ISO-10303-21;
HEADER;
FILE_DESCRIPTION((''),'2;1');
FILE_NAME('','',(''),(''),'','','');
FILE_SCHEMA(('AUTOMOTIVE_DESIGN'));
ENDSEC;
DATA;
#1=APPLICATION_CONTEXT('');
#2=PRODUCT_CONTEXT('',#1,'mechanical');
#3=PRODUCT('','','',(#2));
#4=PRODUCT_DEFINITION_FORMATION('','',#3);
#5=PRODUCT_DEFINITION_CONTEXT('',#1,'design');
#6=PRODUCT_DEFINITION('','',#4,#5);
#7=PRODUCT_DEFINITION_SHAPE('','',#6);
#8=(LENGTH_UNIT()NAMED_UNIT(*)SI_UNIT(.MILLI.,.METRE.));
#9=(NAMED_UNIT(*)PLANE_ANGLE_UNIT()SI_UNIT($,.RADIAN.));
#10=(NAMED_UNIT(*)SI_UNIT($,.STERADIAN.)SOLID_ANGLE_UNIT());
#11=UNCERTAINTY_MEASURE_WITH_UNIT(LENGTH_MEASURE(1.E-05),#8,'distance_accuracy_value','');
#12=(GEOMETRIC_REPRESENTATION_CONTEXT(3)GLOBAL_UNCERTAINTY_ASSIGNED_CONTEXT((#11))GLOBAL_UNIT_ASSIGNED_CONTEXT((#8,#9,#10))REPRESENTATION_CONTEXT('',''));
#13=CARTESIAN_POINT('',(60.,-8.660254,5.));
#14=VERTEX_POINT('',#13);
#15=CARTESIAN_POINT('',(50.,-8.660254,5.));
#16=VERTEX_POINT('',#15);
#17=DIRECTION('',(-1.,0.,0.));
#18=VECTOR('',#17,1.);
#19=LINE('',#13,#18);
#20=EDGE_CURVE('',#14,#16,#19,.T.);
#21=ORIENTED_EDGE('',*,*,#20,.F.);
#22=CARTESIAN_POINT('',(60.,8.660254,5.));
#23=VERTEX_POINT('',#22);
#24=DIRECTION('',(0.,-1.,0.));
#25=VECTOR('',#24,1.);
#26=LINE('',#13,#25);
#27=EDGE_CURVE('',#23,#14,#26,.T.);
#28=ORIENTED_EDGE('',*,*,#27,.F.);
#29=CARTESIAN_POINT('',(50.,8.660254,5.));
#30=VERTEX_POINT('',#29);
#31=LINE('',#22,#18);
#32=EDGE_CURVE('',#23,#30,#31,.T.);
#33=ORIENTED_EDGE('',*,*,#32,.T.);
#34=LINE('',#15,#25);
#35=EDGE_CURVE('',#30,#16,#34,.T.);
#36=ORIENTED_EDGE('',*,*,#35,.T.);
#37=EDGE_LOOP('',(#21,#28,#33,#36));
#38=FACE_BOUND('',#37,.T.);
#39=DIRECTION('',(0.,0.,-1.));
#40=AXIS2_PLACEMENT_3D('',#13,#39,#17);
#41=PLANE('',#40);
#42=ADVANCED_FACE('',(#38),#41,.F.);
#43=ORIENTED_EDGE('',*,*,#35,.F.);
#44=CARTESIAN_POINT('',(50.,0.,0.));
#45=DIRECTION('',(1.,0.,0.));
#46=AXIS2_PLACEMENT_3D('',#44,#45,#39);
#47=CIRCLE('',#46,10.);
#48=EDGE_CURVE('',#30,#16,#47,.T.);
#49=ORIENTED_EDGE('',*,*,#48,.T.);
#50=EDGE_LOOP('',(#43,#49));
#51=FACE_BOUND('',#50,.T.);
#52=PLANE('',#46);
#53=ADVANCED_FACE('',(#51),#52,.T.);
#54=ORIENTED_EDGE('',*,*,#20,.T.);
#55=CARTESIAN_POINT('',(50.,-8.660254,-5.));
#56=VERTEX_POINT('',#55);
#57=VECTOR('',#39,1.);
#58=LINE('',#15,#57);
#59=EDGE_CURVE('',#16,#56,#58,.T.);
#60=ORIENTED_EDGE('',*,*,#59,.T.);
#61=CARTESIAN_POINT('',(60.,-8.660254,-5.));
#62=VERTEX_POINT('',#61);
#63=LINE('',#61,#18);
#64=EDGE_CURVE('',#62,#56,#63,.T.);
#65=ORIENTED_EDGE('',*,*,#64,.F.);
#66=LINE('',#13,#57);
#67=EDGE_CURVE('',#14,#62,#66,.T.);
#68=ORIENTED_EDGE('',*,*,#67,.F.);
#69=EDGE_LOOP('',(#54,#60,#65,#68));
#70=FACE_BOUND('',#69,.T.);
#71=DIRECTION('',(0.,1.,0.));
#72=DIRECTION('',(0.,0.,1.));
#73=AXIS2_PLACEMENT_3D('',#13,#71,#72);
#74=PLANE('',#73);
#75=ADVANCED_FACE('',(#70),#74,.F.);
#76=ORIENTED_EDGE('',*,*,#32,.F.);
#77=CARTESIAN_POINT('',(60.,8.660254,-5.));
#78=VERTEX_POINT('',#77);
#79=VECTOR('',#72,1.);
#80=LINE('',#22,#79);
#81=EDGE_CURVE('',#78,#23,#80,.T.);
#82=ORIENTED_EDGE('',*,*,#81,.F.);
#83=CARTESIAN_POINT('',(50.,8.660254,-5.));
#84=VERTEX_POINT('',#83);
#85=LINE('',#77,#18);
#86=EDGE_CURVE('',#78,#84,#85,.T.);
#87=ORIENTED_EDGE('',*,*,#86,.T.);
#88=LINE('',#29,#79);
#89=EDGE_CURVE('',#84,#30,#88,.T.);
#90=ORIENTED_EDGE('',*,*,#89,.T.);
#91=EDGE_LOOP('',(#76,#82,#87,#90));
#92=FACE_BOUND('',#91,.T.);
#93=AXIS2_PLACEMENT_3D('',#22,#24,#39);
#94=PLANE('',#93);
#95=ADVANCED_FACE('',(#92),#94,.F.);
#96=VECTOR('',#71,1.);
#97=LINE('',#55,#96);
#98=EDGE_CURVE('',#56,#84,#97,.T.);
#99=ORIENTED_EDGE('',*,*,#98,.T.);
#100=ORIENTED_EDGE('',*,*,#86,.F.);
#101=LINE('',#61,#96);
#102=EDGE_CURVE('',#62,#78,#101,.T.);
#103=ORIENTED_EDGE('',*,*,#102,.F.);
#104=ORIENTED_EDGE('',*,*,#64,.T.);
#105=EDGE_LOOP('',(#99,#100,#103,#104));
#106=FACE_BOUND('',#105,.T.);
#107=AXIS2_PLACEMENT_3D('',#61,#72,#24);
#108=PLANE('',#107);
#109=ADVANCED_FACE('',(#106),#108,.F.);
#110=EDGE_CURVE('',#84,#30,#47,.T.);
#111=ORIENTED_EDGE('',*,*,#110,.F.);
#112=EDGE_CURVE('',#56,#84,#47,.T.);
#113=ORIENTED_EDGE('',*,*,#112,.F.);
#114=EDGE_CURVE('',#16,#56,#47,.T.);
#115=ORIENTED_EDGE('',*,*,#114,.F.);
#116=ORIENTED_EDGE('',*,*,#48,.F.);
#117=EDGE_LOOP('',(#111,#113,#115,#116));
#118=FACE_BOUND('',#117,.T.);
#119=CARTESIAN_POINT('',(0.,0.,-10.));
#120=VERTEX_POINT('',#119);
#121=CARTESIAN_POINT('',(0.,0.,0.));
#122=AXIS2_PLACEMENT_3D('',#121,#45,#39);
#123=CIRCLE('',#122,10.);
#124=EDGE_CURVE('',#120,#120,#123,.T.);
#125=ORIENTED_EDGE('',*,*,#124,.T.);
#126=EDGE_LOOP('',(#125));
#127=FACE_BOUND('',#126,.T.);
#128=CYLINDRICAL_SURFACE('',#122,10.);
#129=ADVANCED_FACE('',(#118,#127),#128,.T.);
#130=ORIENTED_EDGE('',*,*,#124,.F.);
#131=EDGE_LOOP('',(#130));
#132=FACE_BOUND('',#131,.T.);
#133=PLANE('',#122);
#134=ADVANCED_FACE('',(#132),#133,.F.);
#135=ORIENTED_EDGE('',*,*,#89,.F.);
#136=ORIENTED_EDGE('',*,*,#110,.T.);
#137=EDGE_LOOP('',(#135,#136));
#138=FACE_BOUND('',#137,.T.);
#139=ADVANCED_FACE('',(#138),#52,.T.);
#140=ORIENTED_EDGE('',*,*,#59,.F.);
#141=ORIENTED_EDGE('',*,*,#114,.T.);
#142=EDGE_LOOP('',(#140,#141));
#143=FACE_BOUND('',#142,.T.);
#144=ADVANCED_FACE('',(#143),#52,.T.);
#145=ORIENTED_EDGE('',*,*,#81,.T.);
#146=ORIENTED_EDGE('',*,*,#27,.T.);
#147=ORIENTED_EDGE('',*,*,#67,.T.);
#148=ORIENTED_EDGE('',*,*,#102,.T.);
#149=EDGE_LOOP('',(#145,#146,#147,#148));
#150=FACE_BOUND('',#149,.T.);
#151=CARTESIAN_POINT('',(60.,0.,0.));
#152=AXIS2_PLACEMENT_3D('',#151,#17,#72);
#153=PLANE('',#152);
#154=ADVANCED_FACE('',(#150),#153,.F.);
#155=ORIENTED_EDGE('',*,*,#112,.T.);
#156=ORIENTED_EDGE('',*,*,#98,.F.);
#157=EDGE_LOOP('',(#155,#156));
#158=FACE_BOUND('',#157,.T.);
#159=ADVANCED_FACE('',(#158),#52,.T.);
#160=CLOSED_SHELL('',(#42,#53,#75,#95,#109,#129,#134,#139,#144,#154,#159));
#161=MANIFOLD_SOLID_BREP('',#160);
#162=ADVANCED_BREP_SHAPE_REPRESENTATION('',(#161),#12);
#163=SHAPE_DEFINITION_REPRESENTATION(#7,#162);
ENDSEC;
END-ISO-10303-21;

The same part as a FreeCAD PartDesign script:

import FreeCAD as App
import Part
import Sketcher

V = App.Vector


def add_polygon(sketch, points):
    """Adds a closed chain of lines whose ends are joined by coincident constraints."""
    first, n = sketch.GeometryCount, len(points)
    for a, b in zip(points, points[1:] + points[:1]):
        sketch.addGeometry(Part.LineSegment(App.Vector(*a, 0), App.Vector(*b, 0)), False)
    for i in range(n):
        sketch.addConstraint(Sketcher.Constraint("Coincident", first + i, 2, first + (i + 1) % n, 1))

doc = App.newDocument("Part")
body = doc.addObject("PartDesign::Body", "Body")

sketch1 = doc.addObject("Sketcher::SketchObject", "Sketch")
body.addObject(sketch1)
sketch1.AttachmentSupport = (doc.YZ_Plane, [""])
sketch1.MapMode = "FlatFace"
sketch1.addGeometry(Part.Circle(V(0, 0, 0), V(0, 0, 1), 30), False)
sketch1.addConstraint([
    Sketcher.Constraint("Coincident", 0, 3, -1, 1),
    Sketcher.Constraint("Diameter", 0, 60.0),
])
pad1 = doc.addObject("PartDesign::Pad", "Pad")
body.addObject(pad1)
pad1.Profile = sketch1
pad1.Length = 10

sketch2 = doc.addObject("Sketcher::SketchObject", "Sketch001")
body.addObject(sketch2)
sketch2.AttachmentSupport = (doc.YZ_Plane, [""])
sketch2.MapMode = "FlatFace"
sketch2.addGeometry([
    Part.Circle(V(0, 0, 0), V(0, 0, 1), 30),
    Part.Circle(V(0, 0, 0), V(0, 0, 1), 10),
], False)
sketch2.addConstraint([
    Sketcher.Constraint("Coincident", 0, 3, -1, 1),
    Sketcher.Constraint("Coincident", 1, 3, -1, 1),
    Sketcher.Constraint("Diameter", 0, 60.0),
    Sketcher.Constraint("Diameter", 1, 20.0),
])
pocket1 = doc.addObject("PartDesign::Pocket", "Pocket")
body.addObject(pocket1)
pocket1.Profile = sketch2
pocket1.Length = 10
pocket1.Reversed = True

sketch3 = doc.addObject("Sketcher::SketchObject", "Sketch002")
body.addObject(sketch3)
sketch3.AttachmentSupport = (doc.YZ_Plane, [""])
sketch3.MapMode = "FlatFace"
sketch3.AttachmentOffset = App.Placement(V(0, 0, 10), App.Rotation())
sketch3.addGeometry(Part.Circle(V(0, 0, 0), V(0, 0, 1), 10), False)
sketch3.addConstraint([
    Sketcher.Constraint("Coincident", 0, 3, -1, 1),
    Sketcher.Constraint("Diameter", 0, 20.0),
])
pad2 = doc.addObject("PartDesign::Pad", "Pad001")
body.addObject(pad2)
pad2.Profile = sketch3
pad2.Length = 40

sketch4 = doc.addObject("Sketcher::SketchObject", "Sketch003")
body.addObject(sketch4)
sketch4.AttachmentSupport = (doc.YZ_Plane, [""])
sketch4.MapMode = "FlatFace"
sketch4.AttachmentOffset = App.Placement(V(0, 0, 50), App.Rotation())
add_polygon(sketch4, [(9, 5), (-9, 5), (-9, -5), (9, -5)])
sketch4.addConstraint([
    Sketcher.Constraint("Horizontal", 0),
    Sketcher.Constraint("Vertical", 1),
    Sketcher.Constraint("Horizontal", 2),
    Sketcher.Constraint("Vertical", 3),
    Sketcher.Constraint("Symmetric", 0, 2, 2, 2, -1, 1),
    Sketcher.Constraint("DistanceY", 1, 2, 1, 1, 10.0),
    Sketcher.Constraint("DistanceX", 0, 2, 0, 1, 17.320508),
])
pad3 = doc.addObject("PartDesign::Pad", "Pad002")
body.addObject(pad3)
pad3.Profile = sketch4
pad3.Length = 10

doc.recompute()
